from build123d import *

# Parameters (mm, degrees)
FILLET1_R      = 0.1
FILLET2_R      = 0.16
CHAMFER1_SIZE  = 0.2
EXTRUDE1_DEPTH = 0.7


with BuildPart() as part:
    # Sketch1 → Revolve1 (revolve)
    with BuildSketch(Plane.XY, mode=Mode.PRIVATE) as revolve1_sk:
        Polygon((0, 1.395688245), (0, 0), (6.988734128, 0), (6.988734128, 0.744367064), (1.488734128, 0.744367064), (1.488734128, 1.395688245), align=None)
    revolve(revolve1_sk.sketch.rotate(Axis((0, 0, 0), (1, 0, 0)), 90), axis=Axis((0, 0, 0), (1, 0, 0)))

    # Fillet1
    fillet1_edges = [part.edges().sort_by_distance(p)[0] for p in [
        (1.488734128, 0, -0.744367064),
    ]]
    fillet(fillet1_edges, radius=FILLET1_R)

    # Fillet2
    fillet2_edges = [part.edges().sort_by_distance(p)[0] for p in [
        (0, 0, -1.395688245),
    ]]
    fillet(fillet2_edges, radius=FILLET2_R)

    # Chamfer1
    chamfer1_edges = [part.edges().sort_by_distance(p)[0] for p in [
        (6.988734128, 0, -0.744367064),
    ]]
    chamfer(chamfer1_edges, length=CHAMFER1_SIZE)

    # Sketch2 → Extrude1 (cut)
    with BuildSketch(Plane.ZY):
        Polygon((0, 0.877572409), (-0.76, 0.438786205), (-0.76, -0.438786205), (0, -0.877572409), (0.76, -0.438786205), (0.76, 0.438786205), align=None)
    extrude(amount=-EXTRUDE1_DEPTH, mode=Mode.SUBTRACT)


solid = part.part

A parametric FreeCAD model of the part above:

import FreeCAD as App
import Part
import Sketcher
Q = App.Units.Quantity


def edges_at(feature, points):
    """Names of the edges that pass closest to the given points."""
    edges = feature.Shape.Edges
    near = lambda p: min(range(len(edges)), key=lambda i: edges[i].distToShape(Part.Vertex(*p))[0])
    return sorted({f"Edge{near(p) + 1}" for p in points})


def add_polygon(sketch, points):
    """Adds a closed chain of lines whose ends are joined by coincident constraints."""
    first, n = sketch.GeometryCount, len(points)
    for a, b in zip(points, points[1:] + points[:1]):
        sketch.addGeometry(Part.LineSegment(App.Vector(*a, 0), App.Vector(*b, 0)), False)
    for i in range(n):
        sketch.addConstraint(Sketcher.Constraint("Coincident", first + i, 2, first + (i + 1) % n, 1))

doc = App.newDocument("Part")
params = doc.addObject("Spreadsheet::Sheet", "Params")
for row, (alias, value) in enumerate([
    ("sketch1_width", "5.5 mm"),
    ("revolution_angle", "360 deg"),
    ("fillet_radius", "0.1 mm"),
    ("fillet2_radius", "0.16 mm"),
    ("chamfer_size", "0.2 mm"),
    ("pocket1_length", "0.7 mm"),
], start=1):
    params.set(f"A{row}", alias)
    params.set(f"B{row}", "=" + value)
    params.setAlias(f"B{row}", alias)

body = doc.addObject("PartDesign::Body", "Body")

sketch1 = body.newObject("Sketcher::SketchObject", "Sketch")
sketch1.AttachmentSupport = (doc.getObject("XY_Plane"), [""])
sketch1.MapMode = "FlatFace"
add_polygon(sketch1, [(0, 1.4), (0, 0), (7, 0), (7, 0.7), (1.5, 0.7), (1.5, 1.4)])
sketch1.addConstraint(Sketcher.Constraint("Vertical", 0))
sketch1.addConstraint(Sketcher.Constraint("Horizontal", 1))
sketch1.addConstraint(Sketcher.Constraint("Vertical", 2))
sketch1.addConstraint(Sketcher.Constraint("Horizontal", 3))
sketch1.addConstraint(Sketcher.Constraint("Vertical", 4))
sketch1.addConstraint(Sketcher.Constraint("Horizontal", 5))
sketch1.addConstraint(Sketcher.Constraint("Coincident", 0, 2, -1, 1))
sketch1.addConstraint(Sketcher.Constraint("DistanceX", 3, 2, 3, 1, 5.5))
sketch1.addConstraint(Sketcher.Constraint("DistanceY", 0, 2, 0, 1, 1.395688))
sketch1.addConstraint(Sketcher.Constraint("DistanceY", 4, 1, 4, 2, 0.651321))
sketch1.addConstraint(Sketcher.Constraint("DistanceX", 1, 1, 1, 2, 6.988734))
sketch1.setExpression("Constraints[13]", "Params.sketch1_width")
revolution = body.newObject("PartDesign::Revolution", "Revolution")
revolution.Profile = sketch1
revolution.ReferenceAxis = (sketch1, ["H_Axis"])
revolution.setExpression("Angle", "Params.revolution_angle")
doc.recompute()

fillet = body.newObject("PartDesign::Fillet", "Fillet")
fillet.Base = (revolution, edges_at(revolution, [(1.489, 0, -0.744)]))
fillet.setExpression("Radius", "Params.fillet_radius")
doc.recompute()

fillet2 = body.newObject("PartDesign::Fillet", "Fillet001")
fillet2.Base = (fillet, edges_at(fillet, [(0, 0, -1.396)]))
fillet2.setExpression("Radius", "Params.fillet2_radius")
doc.recompute()

chamfer = body.newObject("PartDesign::Chamfer", "Chamfer")
chamfer.Base = (fillet2, edges_at(fillet2, [(6.989, 0, -0.744)]))
chamfer.setExpression("Size", "Params.chamfer_size")

sketch2 = body.newObject("Sketcher::SketchObject", "Sketch001")
sketch2.AttachmentSupport = (doc.getObject("YZ_Plane"), [""])
sketch2.MapMode = "FlatFace"
add_polygon(sketch2, [(0.9, 0), (0.4, -0.8), (-0.4, -0.8), (-0.9, 0), (-0.4, 0.8), (0.4, 0.8)])
sketch2.addConstraint(Sketcher.Constraint("Horizontal", 1))
sketch2.addConstraint(Sketcher.Constraint("Horizontal", 4))
sketch2.addConstraint(Sketcher.Constraint("Symmetric", 0, 2, 3, 2, -1, 1))
sketch2.addConstraint(Sketcher.Constraint("Symmetric", 2, 2, 5, 2, -1, 1))
sketch2.addConstraint(Sketcher.Constraint("PointOnObject", 2, 2, -1))
sketch2.addConstraint(Sketcher.Constraint("Parallel", 2, 5))
sketch2.addConstraint(Sketcher.Constraint("Vertical", 1, 2, 3, 2))
sketch2.addConstraint(Sketcher.Constraint("Angle", 0, Q("-120 deg")))
sketch2.addConstraint(Sketcher.Constraint("DistanceY", 0, 2, -1, 1, 0.76))
sketch2.addConstraint(Sketcher.Constraint("DistanceX", 1, 2, 1, 1, 0.877572))
pocket1 = body.newObject("PartDesign::Pocket", "Pocket")
pocket1.Profile = sketch2
pocket1.setExpression("Length", "Params.pocket1_length")
pocket1.Reversed = True

doc.recompute()
